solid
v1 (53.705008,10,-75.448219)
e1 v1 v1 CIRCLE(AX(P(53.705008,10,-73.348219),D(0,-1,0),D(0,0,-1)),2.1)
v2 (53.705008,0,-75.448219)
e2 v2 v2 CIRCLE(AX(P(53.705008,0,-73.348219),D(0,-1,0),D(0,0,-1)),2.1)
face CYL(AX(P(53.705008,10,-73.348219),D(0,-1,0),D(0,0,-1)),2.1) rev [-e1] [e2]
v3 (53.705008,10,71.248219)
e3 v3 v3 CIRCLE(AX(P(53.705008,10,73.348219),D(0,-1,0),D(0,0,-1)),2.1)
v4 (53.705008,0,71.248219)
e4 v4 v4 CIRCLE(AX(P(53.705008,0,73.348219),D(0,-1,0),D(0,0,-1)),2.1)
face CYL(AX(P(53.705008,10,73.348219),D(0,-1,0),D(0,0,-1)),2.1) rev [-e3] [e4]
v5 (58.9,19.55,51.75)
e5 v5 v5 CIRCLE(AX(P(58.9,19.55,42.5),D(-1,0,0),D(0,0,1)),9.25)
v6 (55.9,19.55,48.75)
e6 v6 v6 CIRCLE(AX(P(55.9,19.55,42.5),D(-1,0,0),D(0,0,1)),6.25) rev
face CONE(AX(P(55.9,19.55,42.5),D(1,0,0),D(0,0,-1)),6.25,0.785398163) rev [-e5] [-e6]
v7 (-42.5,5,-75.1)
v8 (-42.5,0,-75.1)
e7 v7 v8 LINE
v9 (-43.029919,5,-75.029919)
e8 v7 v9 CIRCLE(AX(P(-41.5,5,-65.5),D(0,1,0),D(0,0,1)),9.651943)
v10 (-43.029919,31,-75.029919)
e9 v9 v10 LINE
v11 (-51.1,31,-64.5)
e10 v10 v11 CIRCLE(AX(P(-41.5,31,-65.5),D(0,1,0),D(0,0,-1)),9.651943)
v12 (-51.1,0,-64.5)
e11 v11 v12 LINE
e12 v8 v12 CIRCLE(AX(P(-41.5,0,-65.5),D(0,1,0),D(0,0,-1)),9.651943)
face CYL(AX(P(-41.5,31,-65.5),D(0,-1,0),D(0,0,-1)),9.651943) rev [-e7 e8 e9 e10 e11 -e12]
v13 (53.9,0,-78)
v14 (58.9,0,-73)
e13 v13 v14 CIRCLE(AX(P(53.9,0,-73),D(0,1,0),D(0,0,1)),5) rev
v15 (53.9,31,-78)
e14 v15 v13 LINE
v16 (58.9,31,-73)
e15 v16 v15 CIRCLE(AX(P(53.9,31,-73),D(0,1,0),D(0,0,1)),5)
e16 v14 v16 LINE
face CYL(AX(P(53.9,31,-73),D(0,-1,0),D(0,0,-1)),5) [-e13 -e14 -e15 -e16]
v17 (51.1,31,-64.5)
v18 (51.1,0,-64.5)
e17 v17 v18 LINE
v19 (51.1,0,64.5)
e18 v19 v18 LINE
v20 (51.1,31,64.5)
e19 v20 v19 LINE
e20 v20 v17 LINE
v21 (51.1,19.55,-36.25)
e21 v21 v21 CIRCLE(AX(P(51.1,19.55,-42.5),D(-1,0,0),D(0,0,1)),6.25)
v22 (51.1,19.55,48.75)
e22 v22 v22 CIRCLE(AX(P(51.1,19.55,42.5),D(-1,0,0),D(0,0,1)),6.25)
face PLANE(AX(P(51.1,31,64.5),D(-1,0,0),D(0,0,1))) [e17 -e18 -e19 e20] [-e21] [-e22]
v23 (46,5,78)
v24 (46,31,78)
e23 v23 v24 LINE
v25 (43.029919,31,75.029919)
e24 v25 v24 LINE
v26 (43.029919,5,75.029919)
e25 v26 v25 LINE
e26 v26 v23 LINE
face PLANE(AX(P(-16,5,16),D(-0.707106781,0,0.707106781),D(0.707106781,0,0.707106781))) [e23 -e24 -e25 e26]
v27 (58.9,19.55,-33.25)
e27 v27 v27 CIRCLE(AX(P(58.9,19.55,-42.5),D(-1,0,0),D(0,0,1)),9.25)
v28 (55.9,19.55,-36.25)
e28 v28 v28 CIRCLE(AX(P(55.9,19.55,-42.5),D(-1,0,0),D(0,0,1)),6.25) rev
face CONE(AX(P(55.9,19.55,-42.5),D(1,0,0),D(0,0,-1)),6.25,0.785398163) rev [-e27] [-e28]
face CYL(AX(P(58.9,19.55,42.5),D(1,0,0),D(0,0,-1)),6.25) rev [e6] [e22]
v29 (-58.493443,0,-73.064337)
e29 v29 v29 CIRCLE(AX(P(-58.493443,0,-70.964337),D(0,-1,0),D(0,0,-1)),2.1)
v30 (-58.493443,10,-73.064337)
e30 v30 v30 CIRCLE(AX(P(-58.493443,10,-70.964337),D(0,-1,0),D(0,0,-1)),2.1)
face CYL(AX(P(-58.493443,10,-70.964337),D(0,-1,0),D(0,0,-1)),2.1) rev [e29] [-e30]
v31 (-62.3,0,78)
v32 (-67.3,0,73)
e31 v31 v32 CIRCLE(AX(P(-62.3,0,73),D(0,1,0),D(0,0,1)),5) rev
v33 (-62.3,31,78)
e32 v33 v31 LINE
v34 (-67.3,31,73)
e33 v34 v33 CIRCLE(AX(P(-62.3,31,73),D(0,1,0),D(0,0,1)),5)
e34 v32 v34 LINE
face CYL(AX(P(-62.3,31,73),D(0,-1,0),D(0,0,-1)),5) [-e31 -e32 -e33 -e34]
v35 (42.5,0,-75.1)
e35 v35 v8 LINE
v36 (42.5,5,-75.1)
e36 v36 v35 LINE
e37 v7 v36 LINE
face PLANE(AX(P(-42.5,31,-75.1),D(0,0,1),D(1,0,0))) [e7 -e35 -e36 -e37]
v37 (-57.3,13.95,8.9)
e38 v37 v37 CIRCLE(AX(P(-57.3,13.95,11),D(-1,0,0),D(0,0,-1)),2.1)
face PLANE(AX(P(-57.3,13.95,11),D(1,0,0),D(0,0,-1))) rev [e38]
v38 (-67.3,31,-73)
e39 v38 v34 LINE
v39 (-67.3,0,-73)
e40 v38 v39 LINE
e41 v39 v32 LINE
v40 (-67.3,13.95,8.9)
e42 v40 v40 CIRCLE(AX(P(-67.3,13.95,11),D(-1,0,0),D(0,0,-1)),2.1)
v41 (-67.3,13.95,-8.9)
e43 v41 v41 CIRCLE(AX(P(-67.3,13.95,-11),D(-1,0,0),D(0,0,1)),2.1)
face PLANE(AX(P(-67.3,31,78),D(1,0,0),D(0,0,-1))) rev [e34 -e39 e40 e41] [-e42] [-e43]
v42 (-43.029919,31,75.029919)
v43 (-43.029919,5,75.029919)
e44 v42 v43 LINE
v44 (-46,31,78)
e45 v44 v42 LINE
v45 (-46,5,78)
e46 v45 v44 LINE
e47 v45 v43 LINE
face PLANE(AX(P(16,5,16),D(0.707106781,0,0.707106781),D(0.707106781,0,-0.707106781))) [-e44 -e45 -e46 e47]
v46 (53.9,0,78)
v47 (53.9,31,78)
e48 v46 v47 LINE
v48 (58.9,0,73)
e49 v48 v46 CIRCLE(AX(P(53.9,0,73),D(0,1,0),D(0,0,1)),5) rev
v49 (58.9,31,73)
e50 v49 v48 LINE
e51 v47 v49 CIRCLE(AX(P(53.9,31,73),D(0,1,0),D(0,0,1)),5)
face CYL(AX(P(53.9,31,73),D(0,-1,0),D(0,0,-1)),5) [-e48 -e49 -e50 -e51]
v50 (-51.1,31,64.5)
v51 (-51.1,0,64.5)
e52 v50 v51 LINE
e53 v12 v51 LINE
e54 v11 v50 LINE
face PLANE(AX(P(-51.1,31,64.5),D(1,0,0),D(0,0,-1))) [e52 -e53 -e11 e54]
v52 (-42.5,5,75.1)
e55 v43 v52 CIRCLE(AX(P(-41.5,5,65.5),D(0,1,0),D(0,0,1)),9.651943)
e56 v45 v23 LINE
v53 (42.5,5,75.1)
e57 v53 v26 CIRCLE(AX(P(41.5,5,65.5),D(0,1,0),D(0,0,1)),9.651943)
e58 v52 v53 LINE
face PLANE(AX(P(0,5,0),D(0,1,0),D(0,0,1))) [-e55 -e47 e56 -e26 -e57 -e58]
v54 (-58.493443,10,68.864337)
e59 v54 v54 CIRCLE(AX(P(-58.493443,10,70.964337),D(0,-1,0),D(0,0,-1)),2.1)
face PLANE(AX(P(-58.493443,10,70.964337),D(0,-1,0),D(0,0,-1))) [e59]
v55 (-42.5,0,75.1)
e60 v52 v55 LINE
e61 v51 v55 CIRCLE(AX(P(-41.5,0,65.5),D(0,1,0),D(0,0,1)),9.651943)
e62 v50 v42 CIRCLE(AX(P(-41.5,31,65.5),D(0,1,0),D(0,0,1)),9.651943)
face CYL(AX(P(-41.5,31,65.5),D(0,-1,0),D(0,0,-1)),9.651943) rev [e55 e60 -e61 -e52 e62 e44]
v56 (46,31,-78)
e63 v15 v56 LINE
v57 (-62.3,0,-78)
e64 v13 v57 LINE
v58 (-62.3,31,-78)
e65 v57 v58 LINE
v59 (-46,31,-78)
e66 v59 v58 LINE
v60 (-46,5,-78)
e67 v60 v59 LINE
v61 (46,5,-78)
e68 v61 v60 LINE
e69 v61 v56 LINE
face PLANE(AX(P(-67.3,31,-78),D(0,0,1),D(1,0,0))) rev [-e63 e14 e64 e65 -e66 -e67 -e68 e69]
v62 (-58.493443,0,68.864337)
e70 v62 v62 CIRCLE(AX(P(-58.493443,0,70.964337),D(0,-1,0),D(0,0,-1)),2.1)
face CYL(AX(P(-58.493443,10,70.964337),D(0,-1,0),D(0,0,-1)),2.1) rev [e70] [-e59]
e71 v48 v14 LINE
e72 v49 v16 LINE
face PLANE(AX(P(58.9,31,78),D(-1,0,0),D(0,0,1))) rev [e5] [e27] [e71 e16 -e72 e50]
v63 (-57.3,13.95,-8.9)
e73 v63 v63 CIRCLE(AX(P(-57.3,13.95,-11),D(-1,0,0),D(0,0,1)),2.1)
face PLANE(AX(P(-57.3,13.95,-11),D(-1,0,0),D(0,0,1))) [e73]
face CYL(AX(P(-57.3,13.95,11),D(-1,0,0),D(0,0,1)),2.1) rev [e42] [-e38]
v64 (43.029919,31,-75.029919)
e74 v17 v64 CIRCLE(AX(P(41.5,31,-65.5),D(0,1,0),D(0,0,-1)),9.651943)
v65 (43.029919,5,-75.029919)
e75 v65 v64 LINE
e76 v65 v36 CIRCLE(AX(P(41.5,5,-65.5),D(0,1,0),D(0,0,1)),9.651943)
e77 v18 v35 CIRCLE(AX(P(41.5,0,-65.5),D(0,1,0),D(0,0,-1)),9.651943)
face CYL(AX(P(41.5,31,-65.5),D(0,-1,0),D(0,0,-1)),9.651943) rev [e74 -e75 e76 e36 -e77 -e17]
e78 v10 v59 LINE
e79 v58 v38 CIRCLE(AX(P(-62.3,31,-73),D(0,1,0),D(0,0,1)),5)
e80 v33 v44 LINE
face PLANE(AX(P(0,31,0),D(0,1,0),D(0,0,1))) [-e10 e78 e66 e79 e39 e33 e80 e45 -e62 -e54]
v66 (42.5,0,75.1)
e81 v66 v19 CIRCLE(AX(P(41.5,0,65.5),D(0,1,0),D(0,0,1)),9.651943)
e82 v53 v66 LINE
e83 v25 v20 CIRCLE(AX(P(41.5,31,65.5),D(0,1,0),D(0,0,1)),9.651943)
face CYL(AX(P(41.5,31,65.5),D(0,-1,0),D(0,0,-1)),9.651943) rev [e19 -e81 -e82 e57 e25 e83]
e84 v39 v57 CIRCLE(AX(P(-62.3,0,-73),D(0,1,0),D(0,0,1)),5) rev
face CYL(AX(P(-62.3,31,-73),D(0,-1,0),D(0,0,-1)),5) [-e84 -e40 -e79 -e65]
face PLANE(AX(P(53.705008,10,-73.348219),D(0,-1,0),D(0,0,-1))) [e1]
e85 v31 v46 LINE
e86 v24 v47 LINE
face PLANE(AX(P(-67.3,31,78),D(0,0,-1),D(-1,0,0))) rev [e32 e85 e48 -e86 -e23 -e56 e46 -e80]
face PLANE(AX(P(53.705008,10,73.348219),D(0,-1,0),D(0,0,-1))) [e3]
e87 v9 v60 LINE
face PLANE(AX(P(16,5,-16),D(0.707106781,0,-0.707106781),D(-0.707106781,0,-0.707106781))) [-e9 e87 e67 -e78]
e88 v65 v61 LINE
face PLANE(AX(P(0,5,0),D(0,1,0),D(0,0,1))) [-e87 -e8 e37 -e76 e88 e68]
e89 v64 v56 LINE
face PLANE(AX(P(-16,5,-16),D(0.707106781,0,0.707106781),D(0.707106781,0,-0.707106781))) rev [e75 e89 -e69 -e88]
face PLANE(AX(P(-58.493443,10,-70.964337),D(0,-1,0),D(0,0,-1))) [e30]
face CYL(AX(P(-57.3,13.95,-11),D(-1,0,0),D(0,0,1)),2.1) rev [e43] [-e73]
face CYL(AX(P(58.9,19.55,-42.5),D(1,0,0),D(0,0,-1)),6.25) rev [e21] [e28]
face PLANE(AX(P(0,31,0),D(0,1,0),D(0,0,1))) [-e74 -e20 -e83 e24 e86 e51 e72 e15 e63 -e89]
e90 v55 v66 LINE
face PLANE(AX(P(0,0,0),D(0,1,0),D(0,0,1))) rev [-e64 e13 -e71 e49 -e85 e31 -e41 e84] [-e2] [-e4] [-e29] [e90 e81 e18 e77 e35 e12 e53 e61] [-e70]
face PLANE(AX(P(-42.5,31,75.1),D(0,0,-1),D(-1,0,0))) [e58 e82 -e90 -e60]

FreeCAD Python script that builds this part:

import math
import FreeCAD as App
import Part
import Sketcher

V = App.Vector
Q = App.Units.Quantity


def edges_at(feature, points):
    """Names of the edges that pass closest to the given points."""
    edges = feature.Shape.Edges
    near = lambda p: min(range(len(edges)), key=lambda i: edges[i].distToShape(Part.Vertex(*p))[0])
    return sorted({f"Edge{near(p) + 1}" for p in points})


def add_polygon(sketch, points):
    """Adds a closed chain of lines whose ends are joined by coincident constraints."""
    first, n = sketch.GeometryCount, len(points)
    for a, b in zip(points, points[1:] + points[:1]):
        sketch.addGeometry(Part.LineSegment(App.Vector(*a, 0), App.Vector(*b, 0)), False)
    for i in range(n):
        sketch.addConstraint(Sketcher.Constraint("Coincident", first + i, 2, first + (i + 1) % n, 1))

doc = App.newDocument("Part")
body = doc.addObject("PartDesign::Body", "Body")

sketch1 = doc.addObject("Sketcher::SketchObject", "Sketch")
body.addObject(sketch1)
sketch1.AttachmentSupport = (doc.XZ_Plane, [""])
sketch1.MapMode = "FlatFace"
add_polygon(sketch1, [(-67, -78), (-67, 78), (59, 78), (59, -78)])
sketch1.addGeometry(Part.ArcOfCircle(Part.Circle(V(-42, -66, 0), V(0, 0, 1), 10), math.radians(174), math.radians(264)), False)
sketch1.addGeometry(Part.LineSegment(V(-42, -75, 0), V(42, -75, 0)), False)
sketch1.addGeometry(Part.ArcOfCircle(Part.Circle(V(42, -66, 0), V(0, 0, 1), 10), math.radians(-84), math.radians(6)), False)
sketch1.addGeometry(Part.LineSegment(V(51, -64, 0), V(51, 64, 0)), False)
sketch1.addGeometry(Part.ArcOfCircle(Part.Circle(V(42, 66, 0), V(0, 0, 1), 10), math.radians(-6), math.radians(84)), False)
sketch1.addGeometry(Part.LineSegment(V(42, 75, 0), V(-42, 75, 0)), False)
sketch1.addGeometry(Part.ArcOfCircle(Part.Circle(V(-42, 66, 0), V(0, 0, 1), 10), math.radians(96), math.radians(186)), False)
sketch1.addGeometry(Part.LineSegment(V(-51, 64, 0), V(-51, -64, 0)), False)
sketch1.addConstraint([
    Sketcher.Constraint("Coincident", 4, 2, 5, 1),
    Sketcher.Constraint("Coincident", 5, 2, 6, 1),
    Sketcher.Constraint("Coincident", 6, 2, 7, 1),
    Sketcher.Constraint("Coincident", 7, 2, 8, 1),
    Sketcher.Constraint("Coincident", 8, 2, 9, 1),
    Sketcher.Constraint("Coincident", 9, 2, 10, 1),
    Sketcher.Constraint("Coincident", 10, 2, 11, 1),
    Sketcher.Constraint("Coincident", 11, 2, 4, 1),
    Sketcher.Constraint("Vertical", 0),
    Sketcher.Constraint("Horizontal", 1),
    Sketcher.Constraint("Vertical", 2),
    Sketcher.Constraint("Horizontal", 3),
    Sketcher.Constraint("Horizontal", 5),
    Sketcher.Constraint("Vertical", 7),
    Sketcher.Constraint("Horizontal", 9),
    Sketcher.Constraint("Vertical", 11),
    Sketcher.Constraint("Equal", 4, 6),
    Sketcher.Constraint("Equal", 6, 8),
    Sketcher.Constraint("Equal", 8, 10),
    Sketcher.Constraint("Symmetric", 4, 3, 8, 3, -1, 1),
    Sketcher.Constraint("Symmetric", 6, 3, 10, 3, -1, 1),
    Sketcher.Constraint("Symmetric", 4, 3, 6, 3, -2),
    Sketcher.Constraint("Horizontal", 7, 2, 10, 2),
    Sketcher.Constraint("Vertical", 5, 2, 8, 2),
    Sketcher.Constraint("DistanceX", 5, 1, 5, 2, Q("85 mm")),
    Sketcher.Constraint("DistanceY", 0, 1, 0, 2, Q("156 mm")),
    Sketcher.Constraint("DistanceY", 7, 1, 7, 2, Q("129 mm")),
    Sketcher.Constraint("DistanceX", 1, 1, 1, 2, Q("126.2 mm")),
    Sketcher.Constraint("DistanceY", -1, 1, 0, 2, Q("78 mm")),
    Sketcher.Constraint("DistanceX", 4, 3, 6, 3, Q("83 mm")),
    Sketcher.Constraint("DistanceY", 6, 3, 8, 3, Q("131 mm")),
    Sketcher.Constraint("DistanceX", 0, 2, -1, 1, Q("67.3 mm")),
    Sketcher.Constraint("DistanceY", 4, 2, -1, 1, Q("75.1 mm")),
])
pad1 = doc.addObject("PartDesign::Pad", "Pad")
body.addObject(pad1)
pad1.Profile = sketch1
pad1.Length = 31
pad1.Reversed = True

sketch2 = doc.addObject("Sketcher::SketchObject", "Sketch001")
body.addObject(sketch2)
sketch2.AttachmentSupport = (doc.XZ_Plane, [""])
sketch2.MapMode = "FlatFace"
sketch2.AttachmentOffset = App.Placement(V(0, 0, -5), App.Rotation())
add_polygon(sketch2, [(-42.78, 74.78), (-46, 78), (46, 78), (42.87, 74.87), (42.5, 75.1), (-42.5, 75.1)])
add_polygon(sketch2, [(46, -78), (-46, -78), (-42.78, -74.78), (-42.5, -75.1), (42.5, -75.1), (42.87, -74.87)])
sketch2.addConstraint([
    Sketcher.Constraint("Horizontal", 1),
    Sketcher.Constraint("Horizontal", 4),
    Sketcher.Constraint("Horizontal", 6),
    Sketcher.Constraint("Horizontal", 9),
    Sketcher.Constraint("Symmetric", 1, 2, 6, 2, -1, 1),
    Sketcher.Constraint("Symmetric", 3, 2, 8, 2, -1, 1),
    Sketcher.Constraint("Symmetric", 5, 2, 7, 2, -1),
    Sketcher.Constraint("Symmetric", 2, 2, 10, 2, -1),
    Sketcher.Constraint("Perpendicular", 0, 2),
    Sketcher.Constraint("Parallel", 2, 7),
    Sketcher.Constraint("Perpendicular", 7, 11),
    Sketcher.Constraint("Vertical", 0, 2, 6, 2),
    Sketcher.Constraint("Vertical", 4, 2, 8, 2),
    Sketcher.Constraint("Vertical", 3, 2, 9, 2),
    Sketcher.Constraint("DistanceX", 1, 1, 1, 2, Q("92 mm")),
    Sketcher.Constraint("DistanceX", 4, 2, 4, 1, Q("85 mm")),
    Sketcher.Constraint("DistanceY", -1, 1, 0, 2, Q("78 mm")),
    Sketcher.Constraint("DistanceY", -1, 1, 3, 2, Q("75.1 mm")),
    Sketcher.Constraint("Distance", 5, Q("0.425121 mm")),
    Sketcher.Constraint("DistanceY", 5, 2, 2, 2, Q("0.091449 mm")),
])
pocket1 = doc.addObject("PartDesign::Pocket", "Pocket")
body.addObject(pocket1)
pocket1.Profile = sketch2
pocket1.Length = 26
doc.recompute()

fillet = doc.addObject("PartDesign::Fillet", "Fillet")
body.addObject(fillet)
fillet.Base = (pocket1, edges_at(pocket1, [
    (58.9, 15.5, -78),
    (58.9, 15.5, 78),
    (-67.3, 15.5, 78),
    (-67.3, 15.5, -78),
]))
fillet.Radius = 5

sketch3 = doc.addObject("Sketcher::SketchObject", "Sketch002")
body.addObject(sketch3)
sketch3.AttachmentSupport = (doc.YZ_Plane, [""])
sketch3.MapMode = "FlatFace"
sketch3.AttachmentOffset = App.Placement(V(0, 0, 58.9), App.Rotation())
sketch3.addGeometry([
    Part.Circle(V(20, -42, 0), V(0, 0, 1), 6),
    Part.Circle(V(20, 42, 0), V(0, 0, 1), 6),
], False)
sketch3.addConstraint([
    Sketcher.Constraint("Equal", 0, 1),
    Sketcher.Constraint("Symmetric", 0, 3, 1, 3, -1),
    Sketcher.Constraint("Diameter", 0, Q("12.5 mm")),
    Sketcher.Constraint("DistanceY", 0, 3, 1, 3, Q("85 mm")),
    Sketcher.Constraint("DistanceX", -1, 1, 0, 3, Q("19.55 mm")),
])
doc.recompute()
hole = doc.addObject("PartDesign::Hole", "Hole")
body.addObject(hole)
hole.Profile = sketch3
hole.ThreadType = "None"
hole.Diameter = 12.5
hole.DepthType = "Dimension"
hole.Depth = 17
hole.DrillPoint = "Angled"
hole.DrillPointAngle = 118

sketch4 = doc.addObject("Sketcher::SketchObject", "Sketch003")
body.addObject(sketch4)
sketch4.AttachmentSupport = (doc.YZ_Plane, [""])
sketch4.MapMode = "FlatFace"
sketch4.AttachmentOffset = App.Placement(V(0, 0, -67.3), App.Rotation())
sketch4.addGeometry([
    Part.Circle(V(13.9, -11, 0), V(0, 0, 1), 2.1),
    Part.Circle(V(13.9, 11, 0), V(0, 0, 1), 2.1),
], False)
sketch4.addConstraint([
    Sketcher.Constraint("Equal", 0, 1),
    Sketcher.Constraint("Symmetric", 0, 3, 1, 3, -1),
    Sketcher.Constraint("Diameter", 0, Q("4.2 mm")),
    Sketcher.Constraint("DistanceY", 0, 3, -1, 1, Q("11 mm")),
    Sketcher.Constraint("DistanceX", -1, 1, 0, 3, Q("13.95 mm")),
])
pocket2 = doc.addObject("PartDesign::Pocket", "Pocket001")
body.addObject(pocket2)
pocket2.Profile = sketch4
pocket2.Length = 10
pocket2.Reversed = True

sketch5 = doc.addObject("Sketcher::SketchObject", "Sketch004")
body.addObject(sketch5)
sketch5.AttachmentSupport = (doc.XZ_Plane, [""])
sketch5.MapMode = "FlatFace"
sketch5.addGeometry([
    Part.Circle(V(-58.5, 71, 0), V(0, 0, 1), 2.1),
    Part.Circle(V(53.7, 73.3, 0), V(0, 0, 1), 2.1),
    Part.Circle(V(-58.5, -71, 0), V(0, 0, 1), 2.1),
    Part.Circle(V(53.7, -73.3, 0), V(0, 0, 1), 2.1),
], False)
sketch5.addConstraint([
    Sketcher.Constraint("Equal", 0, 1),
    Sketcher.Constraint("Equal", 1, 2),
    Sketcher.Constraint("Equal", 2, 3),
    Sketcher.Constraint("Symmetric", 0, 3, 2, 3, -1),
    Sketcher.Constraint("Symmetric", 1, 3, 3, 3, -1),
    Sketcher.Constraint("Diameter", 0, Q("4.2 mm")),
    Sketcher.Constraint("DistanceX", -1, 1, 1, 3, Q("53.705008 mm")),
    Sketcher.Constraint("DistanceY", -1, 1, 1, 3, Q("73.348219 mm")),
    Sketcher.Constraint("DistanceX", 0, 3, 1, 3, Q("112.198451 mm")),
    Sketcher.Constraint("DistanceY", -1, 1, 0, 3, Q("70.964337 mm")),
])
pocket3 = doc.addObject("PartDesign::Pocket", "Pocket002")
body.addObject(pocket3)
pocket3.Profile = sketch5
pocket3.Length = 10
doc.recompute()

chamfer = doc.addObject("PartDesign::Chamfer", "Chamfer")
body.addObject(chamfer)
chamfer.Base = (pocket3, edges_at(pocket3, [(58.9, 19.55, 36.25), (58.9, 19.55, -48.75)]))
chamfer.Size = 3

doc.recompute()
